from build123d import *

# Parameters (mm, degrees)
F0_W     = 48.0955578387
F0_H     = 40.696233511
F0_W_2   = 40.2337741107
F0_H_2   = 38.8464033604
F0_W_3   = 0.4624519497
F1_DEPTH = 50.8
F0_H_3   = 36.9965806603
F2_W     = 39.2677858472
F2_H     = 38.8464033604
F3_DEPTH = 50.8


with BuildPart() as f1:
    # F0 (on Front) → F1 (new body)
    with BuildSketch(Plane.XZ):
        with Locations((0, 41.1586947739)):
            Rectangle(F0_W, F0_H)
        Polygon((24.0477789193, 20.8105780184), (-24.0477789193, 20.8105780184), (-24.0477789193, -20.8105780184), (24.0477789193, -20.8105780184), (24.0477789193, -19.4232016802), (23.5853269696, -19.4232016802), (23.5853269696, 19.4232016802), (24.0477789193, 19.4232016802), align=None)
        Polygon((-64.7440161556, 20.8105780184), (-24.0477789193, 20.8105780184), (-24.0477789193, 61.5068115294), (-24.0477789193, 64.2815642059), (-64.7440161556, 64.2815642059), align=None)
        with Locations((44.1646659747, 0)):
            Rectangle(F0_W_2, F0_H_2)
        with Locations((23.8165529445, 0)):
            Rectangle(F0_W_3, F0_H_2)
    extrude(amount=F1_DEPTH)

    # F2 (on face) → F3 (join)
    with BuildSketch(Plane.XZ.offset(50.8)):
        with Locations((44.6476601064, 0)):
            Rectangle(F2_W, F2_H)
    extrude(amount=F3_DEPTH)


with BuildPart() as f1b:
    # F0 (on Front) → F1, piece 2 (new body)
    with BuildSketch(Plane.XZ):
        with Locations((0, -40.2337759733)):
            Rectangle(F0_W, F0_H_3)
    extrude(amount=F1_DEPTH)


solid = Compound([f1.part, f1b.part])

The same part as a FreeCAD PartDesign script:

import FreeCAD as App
import Part
import Sketcher
Q = App.Units.Quantity


def add_polygon(sketch, points):
    """Adds a closed chain of lines whose ends are joined by coincident constraints."""
    first, n = sketch.GeometryCount, len(points)
    for a, b in zip(points, points[1:] + points[:1]):
        sketch.addGeometry(Part.LineSegment(App.Vector(*a, 0), App.Vector(*b, 0)), False)
    for i in range(n):
        sketch.addConstraint(Sketcher.Constraint("Coincident", first + i, 2, first + (i + 1) % n, 1))

doc = App.newDocument("Part")
body = doc.addObject("PartDesign::Body", "Body")

# Sketch on XZ plane
sketch1 = body.newObject("Sketcher::SketchObject", "Sketch")
sketch1.AttachmentSupport = (doc.getObject("XZ_Plane"), [""])
sketch1.MapMode = "FlatFace"
add_polygon(sketch1, [(-24, 20.8), (-24, -20.8), (24, -20.8), (24, -19.4), (64.3, -19.4), (64.3, 19.4), (24, 19.4), (24, 20.8), (24, 61.5), (-24, 61.5), (-24, 64.3), (-64.7, 64.3), (-64.7, 20.8)])  # lines 0-12
sketch1.addConstraint(Sketcher.Constraint("Vertical", 0))
sketch1.addConstraint(Sketcher.Constraint("Horizontal", 1))
sketch1.addConstraint(Sketcher.Constraint("Vertical", 2))
sketch1.addConstraint(Sketcher.Constraint("Horizontal", 3))
sketch1.addConstraint(Sketcher.Constraint("Vertical", 4))
sketch1.addConstraint(Sketcher.Constraint("Horizontal", 5))
sketch1.addConstraint(Sketcher.Constraint("Vertical", 6))
sketch1.addConstraint(Sketcher.Constraint("Vertical", 7))
sketch1.addConstraint(Sketcher.Constraint("Horizontal", 8))
sketch1.addConstraint(Sketcher.Constraint("Vertical", 9))
sketch1.addConstraint(Sketcher.Constraint("Horizontal", 10))
sketch1.addConstraint(Sketcher.Constraint("Vertical", 11))
sketch1.addConstraint(Sketcher.Constraint("Horizontal", 12))
sketch1.addConstraint(Sketcher.Constraint("Symmetric", 0, 2, 6, 2, -1, 1))
sketch1.addConstraint(Sketcher.Constraint("Symmetric", 1, 2, 12, 2, -1, 1))
sketch1.addConstraint(Sketcher.Constraint("Vertical", 0, 2, 8, 2))
sketch1.addConstraint(Sketcher.Constraint("Equal", 2, 6))
sketch1.addConstraint(Sketcher.Constraint("DistanceY", 2, 2, -1, 1, 19.423202))
sketch1.addConstraint(Sketcher.Constraint("DistanceX", 1, 1, 1, 2, 48.095558))
sketch1.addConstraint(Sketcher.Constraint("DistanceX", 3, 1, 3, 2, 40.233774))
sketch1.addConstraint(Sketcher.Constraint("DistanceX", 10, 2, 10, 1, 40.696237))
sketch1.addConstraint(Sketcher.Constraint("DistanceY", 0, 2, 0, 1, 41.621156))
sketch1.addConstraint(Sketcher.Constraint("DistanceY", 7, 1, 7, 2, 40.696234))
sketch1.addConstraint(Sketcher.Constraint("DistanceY", 9, 1, 9, 2, 2.774753))
pad1 = body.newObject("PartDesign::Pad", "Pad")
pad1.Profile = sketch1
pad1.Length = Q("2 in")

# Sketch on XZ plane
sketch2 = body.newObject("Sketcher::SketchObject", "Sketch001")
sketch2.AttachmentSupport = (doc.getObject("XZ_Plane"), [""])
sketch2.MapMode = "FlatFace"
sketch2.AttachmentOffset = App.Placement(App.Vector(0, 0, 2 * 25.4), App.Rotation())
add_polygon(sketch2, [(25, 19), (25, -19), (64, -19), (64, 19)])  # lines 0-3
sketch2.addConstraint(Sketcher.Constraint("Vertical", 0))
sketch2.addConstraint(Sketcher.Constraint("Horizontal", 1))
sketch2.addConstraint(Sketcher.Constraint("Vertical", 2))
sketch2.addConstraint(Sketcher.Constraint("Horizontal", 3))
sketch2.addConstraint(Sketcher.Constraint("DistanceY", 0, 2, -1, 1, 19.423202))
sketch2.addConstraint(Sketcher.Constraint("DistanceY", -1, 1, 2, 2, 19.423202))
sketch2.addConstraint(Sketcher.Constraint("DistanceX", 1, 1, 1, 2, 39.267786))
sketch2.addConstraint(Sketcher.Constraint("DistanceX", -1, 1, 0, 2, 25.013767))
pad2 = body.newObject("PartDesign::Pad", "Pad001")
pad2.Profile = sketch2
pad2.Length = Q("2 in")
body2 = doc.addObject("PartDesign::Body", "Body001")

# Sketch on XZ plane
sketch3 = body2.newObject("Sketcher::SketchObject", "Sketch002")
sketch3.AttachmentSupport = (doc.getObject("XZ_Plane001"), [""])
sketch3.MapMode = "FlatFace"
add_polygon(sketch3, [(-24, -22), (-24, -59), (24, -59), (24, -22)])  # lines 0-3
sketch3.addConstraint(Sketcher.Constraint("Vertical", 0))
sketch3.addConstraint(Sketcher.Constraint("Horizontal", 1))
sketch3.addConstraint(Sketcher.Constraint("Vertical", 2))
sketch3.addConstraint(Sketcher.Constraint("Horizontal", 3))
sketch3.addConstraint(Sketcher.Constraint("DistanceY", 0, 2, 0, 1, 36.996581))
sketch3.addConstraint(Sketcher.Constraint("DistanceX", 1, 1, 1, 2, 48.095558))
sketch3.addConstraint(Sketcher.Constraint("DistanceX", 0, 2, -1, 1, 24.047779))
sketch3.addConstraint(Sketcher.Constraint("DistanceY", 0, 2, -1, 1, 58.732066))
pad3 = body2.newObject("PartDesign::Pad", "Pad002")
pad3.Profile = sketch3
pad3.Length = Q("2 in")

doc.recompute()
